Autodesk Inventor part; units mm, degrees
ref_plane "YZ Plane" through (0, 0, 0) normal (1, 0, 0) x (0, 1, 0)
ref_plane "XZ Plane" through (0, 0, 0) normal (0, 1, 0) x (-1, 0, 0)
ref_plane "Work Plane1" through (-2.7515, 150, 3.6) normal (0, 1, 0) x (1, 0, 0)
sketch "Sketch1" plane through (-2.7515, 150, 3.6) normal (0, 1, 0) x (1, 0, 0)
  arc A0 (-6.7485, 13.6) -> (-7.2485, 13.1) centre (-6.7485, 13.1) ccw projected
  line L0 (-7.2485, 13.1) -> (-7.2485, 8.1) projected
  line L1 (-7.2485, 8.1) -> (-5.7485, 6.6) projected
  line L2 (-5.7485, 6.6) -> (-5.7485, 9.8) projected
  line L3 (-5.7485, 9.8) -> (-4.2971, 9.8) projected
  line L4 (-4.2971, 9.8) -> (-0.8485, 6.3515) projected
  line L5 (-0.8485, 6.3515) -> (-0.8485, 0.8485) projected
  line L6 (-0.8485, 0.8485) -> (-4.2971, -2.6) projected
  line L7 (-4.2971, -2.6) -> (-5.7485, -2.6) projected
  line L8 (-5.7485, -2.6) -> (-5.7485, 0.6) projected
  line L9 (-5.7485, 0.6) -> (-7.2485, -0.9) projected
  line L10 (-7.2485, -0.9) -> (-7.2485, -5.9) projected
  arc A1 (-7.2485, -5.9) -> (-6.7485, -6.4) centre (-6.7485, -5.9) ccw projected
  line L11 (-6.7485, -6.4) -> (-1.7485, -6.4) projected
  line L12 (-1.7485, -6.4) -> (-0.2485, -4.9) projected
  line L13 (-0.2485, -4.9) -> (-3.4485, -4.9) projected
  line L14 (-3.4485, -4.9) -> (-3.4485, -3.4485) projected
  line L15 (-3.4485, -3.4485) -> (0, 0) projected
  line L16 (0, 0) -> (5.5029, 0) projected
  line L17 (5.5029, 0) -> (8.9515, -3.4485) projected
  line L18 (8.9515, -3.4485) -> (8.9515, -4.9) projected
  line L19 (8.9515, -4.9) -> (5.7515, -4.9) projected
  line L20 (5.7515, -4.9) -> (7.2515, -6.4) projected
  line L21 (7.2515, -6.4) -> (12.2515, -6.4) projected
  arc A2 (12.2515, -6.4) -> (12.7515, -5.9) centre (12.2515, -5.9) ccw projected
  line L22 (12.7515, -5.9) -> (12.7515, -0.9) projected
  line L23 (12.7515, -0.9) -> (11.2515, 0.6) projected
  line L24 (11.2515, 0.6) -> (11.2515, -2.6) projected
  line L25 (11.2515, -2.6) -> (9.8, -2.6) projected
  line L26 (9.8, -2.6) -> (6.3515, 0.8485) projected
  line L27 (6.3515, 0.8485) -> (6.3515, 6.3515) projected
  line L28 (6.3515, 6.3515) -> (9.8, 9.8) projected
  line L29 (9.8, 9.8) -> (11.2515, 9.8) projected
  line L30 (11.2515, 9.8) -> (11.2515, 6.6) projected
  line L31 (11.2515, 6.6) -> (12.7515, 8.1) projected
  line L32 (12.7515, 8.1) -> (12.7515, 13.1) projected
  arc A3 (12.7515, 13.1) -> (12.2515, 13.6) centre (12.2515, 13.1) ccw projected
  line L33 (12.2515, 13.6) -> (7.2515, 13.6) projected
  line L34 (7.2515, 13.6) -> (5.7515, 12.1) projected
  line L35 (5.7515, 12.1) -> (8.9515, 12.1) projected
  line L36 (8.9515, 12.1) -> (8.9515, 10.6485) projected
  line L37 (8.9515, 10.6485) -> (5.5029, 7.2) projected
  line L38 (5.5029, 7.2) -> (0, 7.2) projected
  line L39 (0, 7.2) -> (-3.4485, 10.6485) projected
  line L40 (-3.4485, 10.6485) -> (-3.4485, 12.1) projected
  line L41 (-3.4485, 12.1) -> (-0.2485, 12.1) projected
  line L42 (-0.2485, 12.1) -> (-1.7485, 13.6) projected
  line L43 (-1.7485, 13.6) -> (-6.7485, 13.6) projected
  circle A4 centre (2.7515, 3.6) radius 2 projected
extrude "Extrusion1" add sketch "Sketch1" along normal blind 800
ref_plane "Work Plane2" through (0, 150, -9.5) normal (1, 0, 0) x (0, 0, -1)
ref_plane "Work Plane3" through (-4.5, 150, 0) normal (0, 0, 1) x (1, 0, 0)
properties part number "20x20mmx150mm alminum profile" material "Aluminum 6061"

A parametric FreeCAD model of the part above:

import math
import FreeCAD as App
import Part
import Sketcher

V = App.Vector

doc = App.newDocument("Part")
params = doc.addObject("Spreadsheet::Sheet", "Params")
for row, (alias, value) in enumerate([
    ("sketch1_diameter", "4 mm"),
    ("sketch1_radius", "0.5 mm"),
    ("sketch1_width", "5 mm"),
    ("sketch1_width2", "3.2 mm"),
    ("pad1_length", "800 mm"),
], start=1):
    params.set(f"A{row}", alias)
    params.set(f"B{row}", "=" + value)
    params.setAlias(f"B{row}", alias)

body = doc.addObject("PartDesign::Body", "Body")

# Sketch on XZ plane
sketch1 = body.newObject("Sketcher::SketchObject", "Sketch")
sketch1.AttachmentSupport = (doc.getObject("XZ_Plane"), [""])
sketch1.MapMode = "FlatFace"
sketch1.AttachmentOffset = App.Placement(V(0, 0, -150), App.Rotation())
sketch1.addGeometry([
    Part.LineSegment(V(-4.5, -10, 0), V(-9.5, -10, 0)),  # 0
    Part.ArcOfCircle(Part.Circle(V(-9.5, -9.5, 0), V(0, 0, 1), 0.5), math.radians(180), math.radians(270)),  # 1
    Part.LineSegment(V(-10, -9.5, 0), V(-10, -4.5, 0)),  # 2
    Part.LineSegment(V(-10, -4.5, 0), V(-8.5, -3, 0)),  # 3
    Part.LineSegment(V(-8.5, -3, 0), V(-8.5, -6.2, 0)),  # 4
    Part.LineSegment(V(-8.5, -6.2, 0), V(-7, -6.2, 0)),  # 5
    Part.LineSegment(V(-7, -6.2, 0), V(-3.6, -2.8, 0)),  # 6
    Part.LineSegment(V(-3.6, -2.8, 0), V(-3.6, 2.8, 0)),  # 7
    Part.LineSegment(V(-3.6, 2.8, 0), V(-7, 6.2, 0)),  # 8
    Part.LineSegment(V(-7, 6.2, 0), V(-8.5, 6.2, 0)),  # 9
    Part.LineSegment(V(-8.5, 6.2, 0), V(-8.5, 3, 0)),  # 10
    Part.LineSegment(V(-8.5, 3, 0), V(-10, 4.5, 0)),  # 11
    Part.LineSegment(V(-10, 4.5, 0), V(-10, 9.5, 0)),  # 12
    Part.ArcOfCircle(Part.Circle(V(-9.5, 9.5, 0), V(0, 0, 1), 0.5), math.radians(90), math.radians(180)),  # 13
    Part.LineSegment(V(-9.5, 10, 0), V(-4.5, 10, 0)),  # 14
    Part.LineSegment(V(-4.5, 10, 0), V(-3, 8.5, 0)),  # 15
    Part.LineSegment(V(-3, 8.5, 0), V(-6.2, 8.5, 0)),  # 16
    Part.LineSegment(V(-6.2, 8.5, 0), V(-6.2, 7, 0)),  # 17
    Part.LineSegment(V(-6.2, 7, 0), V(-2.8, 3.6, 0)),  # 18
    Part.LineSegment(V(-2.8, 3.6, 0), V(2.8, 3.6, 0)),  # 19
    Part.LineSegment(V(2.8, 3.6, 0), V(6.2, 7, 0)),  # 20
    Part.LineSegment(V(6.2, 7, 0), V(6.2, 8.5, 0)),  # 21
    Part.LineSegment(V(6.2, 8.5, 0), V(3, 8.5, 0)),  # 22
    Part.LineSegment(V(3, 8.5, 0), V(4.5, 10, 0)),  # 23
    Part.LineSegment(V(4.5, 10, 0), V(9.5, 10, 0)),  # 24
    Part.ArcOfCircle(Part.Circle(V(9.5, 9.5, 0), V(0, 0, 1), 0.5), math.radians(0), math.radians(90)),  # 25
    Part.LineSegment(V(10, 9.5, 0), V(10, 4.5, 0)),  # 26
    Part.LineSegment(V(10, 4.5, 0), V(8.5, 3, 0)),  # 27
    Part.LineSegment(V(8.5, 3, 0), V(8.5, 6.2, 0)),  # 28
    Part.LineSegment(V(8.5, 6.2, 0), V(7, 6.2, 0)),  # 29
    Part.LineSegment(V(7, 6.2, 0), V(3.6, 2.8, 0)),  # 30
    Part.LineSegment(V(3.6, 2.8, 0), V(3.6, -2.8, 0)),  # 31
    Part.LineSegment(V(3.6, -2.8, 0), V(7, -6.2, 0)),  # 32
    Part.LineSegment(V(7, -6.2, 0), V(8.5, -6.2, 0)),  # 33
    Part.LineSegment(V(8.5, -6.2, 0), V(8.5, -3, 0)),  # 34
    Part.LineSegment(V(8.5, -3, 0), V(10, -4.5, 0)),  # 35
    Part.LineSegment(V(10, -4.5, 0), V(10, -9.5, 0)),  # 36
    Part.ArcOfCircle(Part.Circle(V(9.5, -9.5, 0), V(0, 0, 1), 0.5), math.radians(-90), math.radians(0)),  # 37
    Part.LineSegment(V(9.5, -10, 0), V(4.5, -10, 0)),  # 38
    Part.LineSegment(V(4.5, -10, 0), V(3, -8.5, 0)),  # 39
    Part.LineSegment(V(3, -8.5, 0), V(6.2, -8.5, 0)),  # 40
    Part.LineSegment(V(6.2, -8.5, 0), V(6.2, -7, 0)),  # 41
    Part.LineSegment(V(6.2, -7, 0), V(2.8, -3.6, 0)),  # 42
    Part.LineSegment(V(2.8, -3.6, 0), V(-2.8, -3.6, 0)),  # 43
    Part.LineSegment(V(-2.8, -3.6, 0), V(-6.2, -7, 0)),  # 44
    Part.LineSegment(V(-6.2, -7, 0), V(-6.2, -8.5, 0)),  # 45
    Part.LineSegment(V(-6.2, -8.5, 0), V(-3, -8.5, 0)),  # 46
    Part.LineSegment(V(-3, -8.5, 0), V(-4.5, -10, 0)),  # 47
    Part.Circle(V(0, 0, 0), V(0, 0, 1), 2),  # 48
], False)
sketch1.addConstraint([
    Sketcher.Constraint("Tangent", 0, 2, 1, 2),
    Sketcher.Constraint("Tangent", 1, 1, 2, 1),
    Sketcher.Constraint("Coincident", 2, 2, 3, 1),
    Sketcher.Constraint("Coincident", 3, 2, 4, 1),
    Sketcher.Constraint("Coincident", 4, 2, 5, 1),
    Sketcher.Constraint("Coincident", 5, 2, 6, 1),
    Sketcher.Constraint("Coincident", 6, 2, 7, 1),
    Sketcher.Constraint("Coincident", 7, 2, 8, 1),
    Sketcher.Constraint("Coincident", 8, 2, 9, 1),
    Sketcher.Constraint("Coincident", 9, 2, 10, 1),
    Sketcher.Constraint("Coincident", 10, 2, 11, 1),
    Sketcher.Constraint("Coincident", 11, 2, 12, 1),
    Sketcher.Constraint("Tangent", 12, 2, 13, 2),
    Sketcher.Constraint("Tangent", 13, 1, 14, 1),
    Sketcher.Constraint("Coincident", 14, 2, 15, 1),
    Sketcher.Constraint("Coincident", 15, 2, 16, 1),
    Sketcher.Constraint("Coincident", 16, 2, 17, 1),
    Sketcher.Constraint("Coincident", 17, 2, 18, 1),
    Sketcher.Constraint("Coincident", 18, 2, 19, 1),
    Sketcher.Constraint("Coincident", 19, 2, 20, 1),
    Sketcher.Constraint("Coincident", 20, 2, 21, 1),
    Sketcher.Constraint("Coincident", 21, 2, 22, 1),
    Sketcher.Constraint("Coincident", 22, 2, 23, 1),
    Sketcher.Constraint("Coincident", 23, 2, 24, 1),
    Sketcher.Constraint("Tangent", 24, 2, 25, 2),
    Sketcher.Constraint("Tangent", 25, 1, 26, 1),
    Sketcher.Constraint("Coincident", 26, 2, 27, 1),
    Sketcher.Constraint("Coincident", 27, 2, 28, 1),
    Sketcher.Constraint("Coincident", 28, 2, 29, 1),
    Sketcher.Constraint("Coincident", 29, 2, 30, 1),
    Sketcher.Constraint("Coincident", 30, 2, 31, 1),
    Sketcher.Constraint("Coincident", 31, 2, 32, 1),
    Sketcher.Constraint("Coincident", 32, 2, 33, 1),
    Sketcher.Constraint("Coincident", 33, 2, 34, 1),
    Sketcher.Constraint("Coincident", 34, 2, 35, 1),
    Sketcher.Constraint("Coincident", 35, 2, 36, 1),
    Sketcher.Constraint("Tangent", 36, 2, 37, 2),
    Sketcher.Constraint("Tangent", 37, 1, 38, 1),
    Sketcher.Constraint("Coincident", 38, 2, 39, 1),
    Sketcher.Constraint("Coincident", 39, 2, 40, 1),
    Sketcher.Constraint("Coincident", 40, 2, 41, 1),
    Sketcher.Constraint("Coincident", 41, 2, 42, 1),
    Sketcher.Constraint("Coincident", 42, 2, 43, 1),
    Sketcher.Constraint("Coincident", 43, 2, 44, 1),
    Sketcher.Constraint("Coincident", 44, 2, 45, 1),
    Sketcher.Constraint("Coincident", 45, 2, 46, 1),
    Sketcher.Constraint("Coincident", 46, 2, 47, 1),
    Sketcher.Constraint("Coincident", 47, 2, 0, 1),
    Sketcher.Constraint("Horizontal", 0),
    Sketcher.Constraint("Vertical", 2),
    Sketcher.Constraint("Vertical", 4),
    Sketcher.Constraint("Horizontal", 5),
    Sketcher.Constraint("Vertical", 7),
    Sketcher.Constraint("Horizontal", 9),
    Sketcher.Constraint("Vertical", 10),
    Sketcher.Constraint("Vertical", 12),
    Sketcher.Constraint("Horizontal", 14),
    Sketcher.Constraint("Horizontal", 16),
    Sketcher.Constraint("Vertical", 17),
    Sketcher.Constraint("Horizontal", 19),
    Sketcher.Constraint("Vertical", 21),
    Sketcher.Constraint("Horizontal", 22),
    Sketcher.Constraint("Horizontal", 24),
    Sketcher.Constraint("Vertical", 26),
    Sketcher.Constraint("Vertical", 28),
    Sketcher.Constraint("Horizontal", 29),
    Sketcher.Constraint("Vertical", 31),
    Sketcher.Constraint("Horizontal", 33),
    Sketcher.Constraint("Vertical", 34),
    Sketcher.Constraint("Vertical", 36),
    Sketcher.Constraint("Horizontal", 38),
    Sketcher.Constraint("Horizontal", 40),
    Sketcher.Constraint("Vertical", 41),
    Sketcher.Constraint("Horizontal", 43),
    Sketcher.Constraint("Vertical", 45),
    Sketcher.Constraint("Horizontal", 46),
    Sketcher.Constraint("Coincident", 48, 3, -1, 1),
    Sketcher.Constraint("Equal", 1, 13),
    Sketcher.Constraint("Equal", 13, 25),
    Sketcher.Constraint("Equal", 25, 37),
    Sketcher.Constraint("Symmetric", 1, 3, 25, 3, -1, 1),
    Sketcher.Constraint("Symmetric", 13, 3, 37, 3, -1, 1),
    Sketcher.Constraint("Symmetric", 3, 2, 27, 2, -1, 1),
    Sketcher.Constraint("Symmetric", 5, 2, 29, 2, -1, 1),
    Sketcher.Constraint("Symmetric", 6, 2, 30, 2, -1, 1),
    Sketcher.Constraint("Symmetric", 8, 2, 32, 2, -1, 1),
    Sketcher.Constraint("Symmetric", 10, 2, 34, 2, -1, 1),
    Sketcher.Constraint("Symmetric", 15, 2, 39, 2, -1, 1),
    Sketcher.Constraint("Symmetric", 17, 2, 41, 2, -1, 1),
    Sketcher.Constraint("Symmetric", 18, 2, 42, 2, -1, 1),
    Sketcher.Constraint("Symmetric", 20, 2, 44, 2, -1, 1),
    Sketcher.Constraint("Symmetric", 22, 2, 46, 2, -1, 1),
    Sketcher.Constraint("Symmetric", 13, 3, 25, 3, -2),
    Sketcher.Constraint("Symmetric", 17, 2, 20, 2, -2),
    Sketcher.Constraint("Symmetric", 15, 2, 22, 2, -2),
    Sketcher.Constraint("Symmetric", 10, 2, 27, 2, -2),
    Sketcher.Constraint("Symmetric", 8, 2, 29, 2, -2),
    Sketcher.Constraint("Parallel", 3, 6),
    Sketcher.Constraint("Perpendicular", 6, 8),
    Sketcher.Constraint("Parallel", 8, 11),
    Sketcher.Constraint("Parallel", 11, 15),
    Sketcher.Constraint("Parallel", 15, 18),
    Sketcher.Constraint("Perpendicular", 18, 20),
    Sketcher.Constraint("Parallel", 20, 23),
    Sketcher.Constraint("Parallel", 23, 27),
    Sketcher.Constraint("Perpendicular", 30, 32),
    Sketcher.Constraint("Parallel", 32, 35),
    Sketcher.Constraint("Parallel", 35, 39),
    Sketcher.Constraint("Perpendicular", 42, 44),
    Sketcher.Constraint("Parallel", 44, 47),
    Sketcher.Constraint("Horizontal", 11, 2, 26, 2),
    Sketcher.Constraint("Equal", 38, 2),
    Sketcher.Constraint("Equal", 46, 4),
    Sketcher.Constraint("Equal", 43, 7),
    Sketcher.Constraint("Equal", 33, 17),
    Sketcher.Constraint("Equal", 11, 15),
    Sketcher.Constraint("Equal", 8, 18),
    Sketcher.Constraint("Diameter", 48, 4.0),
    Sketcher.Constraint("Radius", 1, 0.5),
    Sketcher.Constraint("DistanceX", 0, 2, 0, 1, 5.0),
    Sketcher.Constraint("DistanceX", 16, 2, 16, 1, 3.2),
    Sketcher.Constraint("DistanceY", 0, 2, -1, 1, 10.0),
    Sketcher.Constraint("DistanceY", 3, 2, -1, 1, 3.0),
    Sketcher.Constraint("DistanceX", 6, 2, -1, 1, 3.6),
    Sketcher.Constraint("DistanceX", 19, 1, 19, 2, 5.503),
])
sketch1.setExpression("Constraints[117]", "Params.sketch1_diameter")
sketch1.setExpression("Constraints[118]", "Params.sketch1_radius")
sketch1.setExpression("Constraints[119]", "Params.sketch1_width")
sketch1.setExpression("Constraints[120]", "Params.sketch1_width2")
pad1 = body.newObject("PartDesign::Pad", "Pad")
pad1.Profile = sketch1
pad1.setExpression("Length", "Params.pad1_length")
pad1.Reversed = True

doc.recompute()
